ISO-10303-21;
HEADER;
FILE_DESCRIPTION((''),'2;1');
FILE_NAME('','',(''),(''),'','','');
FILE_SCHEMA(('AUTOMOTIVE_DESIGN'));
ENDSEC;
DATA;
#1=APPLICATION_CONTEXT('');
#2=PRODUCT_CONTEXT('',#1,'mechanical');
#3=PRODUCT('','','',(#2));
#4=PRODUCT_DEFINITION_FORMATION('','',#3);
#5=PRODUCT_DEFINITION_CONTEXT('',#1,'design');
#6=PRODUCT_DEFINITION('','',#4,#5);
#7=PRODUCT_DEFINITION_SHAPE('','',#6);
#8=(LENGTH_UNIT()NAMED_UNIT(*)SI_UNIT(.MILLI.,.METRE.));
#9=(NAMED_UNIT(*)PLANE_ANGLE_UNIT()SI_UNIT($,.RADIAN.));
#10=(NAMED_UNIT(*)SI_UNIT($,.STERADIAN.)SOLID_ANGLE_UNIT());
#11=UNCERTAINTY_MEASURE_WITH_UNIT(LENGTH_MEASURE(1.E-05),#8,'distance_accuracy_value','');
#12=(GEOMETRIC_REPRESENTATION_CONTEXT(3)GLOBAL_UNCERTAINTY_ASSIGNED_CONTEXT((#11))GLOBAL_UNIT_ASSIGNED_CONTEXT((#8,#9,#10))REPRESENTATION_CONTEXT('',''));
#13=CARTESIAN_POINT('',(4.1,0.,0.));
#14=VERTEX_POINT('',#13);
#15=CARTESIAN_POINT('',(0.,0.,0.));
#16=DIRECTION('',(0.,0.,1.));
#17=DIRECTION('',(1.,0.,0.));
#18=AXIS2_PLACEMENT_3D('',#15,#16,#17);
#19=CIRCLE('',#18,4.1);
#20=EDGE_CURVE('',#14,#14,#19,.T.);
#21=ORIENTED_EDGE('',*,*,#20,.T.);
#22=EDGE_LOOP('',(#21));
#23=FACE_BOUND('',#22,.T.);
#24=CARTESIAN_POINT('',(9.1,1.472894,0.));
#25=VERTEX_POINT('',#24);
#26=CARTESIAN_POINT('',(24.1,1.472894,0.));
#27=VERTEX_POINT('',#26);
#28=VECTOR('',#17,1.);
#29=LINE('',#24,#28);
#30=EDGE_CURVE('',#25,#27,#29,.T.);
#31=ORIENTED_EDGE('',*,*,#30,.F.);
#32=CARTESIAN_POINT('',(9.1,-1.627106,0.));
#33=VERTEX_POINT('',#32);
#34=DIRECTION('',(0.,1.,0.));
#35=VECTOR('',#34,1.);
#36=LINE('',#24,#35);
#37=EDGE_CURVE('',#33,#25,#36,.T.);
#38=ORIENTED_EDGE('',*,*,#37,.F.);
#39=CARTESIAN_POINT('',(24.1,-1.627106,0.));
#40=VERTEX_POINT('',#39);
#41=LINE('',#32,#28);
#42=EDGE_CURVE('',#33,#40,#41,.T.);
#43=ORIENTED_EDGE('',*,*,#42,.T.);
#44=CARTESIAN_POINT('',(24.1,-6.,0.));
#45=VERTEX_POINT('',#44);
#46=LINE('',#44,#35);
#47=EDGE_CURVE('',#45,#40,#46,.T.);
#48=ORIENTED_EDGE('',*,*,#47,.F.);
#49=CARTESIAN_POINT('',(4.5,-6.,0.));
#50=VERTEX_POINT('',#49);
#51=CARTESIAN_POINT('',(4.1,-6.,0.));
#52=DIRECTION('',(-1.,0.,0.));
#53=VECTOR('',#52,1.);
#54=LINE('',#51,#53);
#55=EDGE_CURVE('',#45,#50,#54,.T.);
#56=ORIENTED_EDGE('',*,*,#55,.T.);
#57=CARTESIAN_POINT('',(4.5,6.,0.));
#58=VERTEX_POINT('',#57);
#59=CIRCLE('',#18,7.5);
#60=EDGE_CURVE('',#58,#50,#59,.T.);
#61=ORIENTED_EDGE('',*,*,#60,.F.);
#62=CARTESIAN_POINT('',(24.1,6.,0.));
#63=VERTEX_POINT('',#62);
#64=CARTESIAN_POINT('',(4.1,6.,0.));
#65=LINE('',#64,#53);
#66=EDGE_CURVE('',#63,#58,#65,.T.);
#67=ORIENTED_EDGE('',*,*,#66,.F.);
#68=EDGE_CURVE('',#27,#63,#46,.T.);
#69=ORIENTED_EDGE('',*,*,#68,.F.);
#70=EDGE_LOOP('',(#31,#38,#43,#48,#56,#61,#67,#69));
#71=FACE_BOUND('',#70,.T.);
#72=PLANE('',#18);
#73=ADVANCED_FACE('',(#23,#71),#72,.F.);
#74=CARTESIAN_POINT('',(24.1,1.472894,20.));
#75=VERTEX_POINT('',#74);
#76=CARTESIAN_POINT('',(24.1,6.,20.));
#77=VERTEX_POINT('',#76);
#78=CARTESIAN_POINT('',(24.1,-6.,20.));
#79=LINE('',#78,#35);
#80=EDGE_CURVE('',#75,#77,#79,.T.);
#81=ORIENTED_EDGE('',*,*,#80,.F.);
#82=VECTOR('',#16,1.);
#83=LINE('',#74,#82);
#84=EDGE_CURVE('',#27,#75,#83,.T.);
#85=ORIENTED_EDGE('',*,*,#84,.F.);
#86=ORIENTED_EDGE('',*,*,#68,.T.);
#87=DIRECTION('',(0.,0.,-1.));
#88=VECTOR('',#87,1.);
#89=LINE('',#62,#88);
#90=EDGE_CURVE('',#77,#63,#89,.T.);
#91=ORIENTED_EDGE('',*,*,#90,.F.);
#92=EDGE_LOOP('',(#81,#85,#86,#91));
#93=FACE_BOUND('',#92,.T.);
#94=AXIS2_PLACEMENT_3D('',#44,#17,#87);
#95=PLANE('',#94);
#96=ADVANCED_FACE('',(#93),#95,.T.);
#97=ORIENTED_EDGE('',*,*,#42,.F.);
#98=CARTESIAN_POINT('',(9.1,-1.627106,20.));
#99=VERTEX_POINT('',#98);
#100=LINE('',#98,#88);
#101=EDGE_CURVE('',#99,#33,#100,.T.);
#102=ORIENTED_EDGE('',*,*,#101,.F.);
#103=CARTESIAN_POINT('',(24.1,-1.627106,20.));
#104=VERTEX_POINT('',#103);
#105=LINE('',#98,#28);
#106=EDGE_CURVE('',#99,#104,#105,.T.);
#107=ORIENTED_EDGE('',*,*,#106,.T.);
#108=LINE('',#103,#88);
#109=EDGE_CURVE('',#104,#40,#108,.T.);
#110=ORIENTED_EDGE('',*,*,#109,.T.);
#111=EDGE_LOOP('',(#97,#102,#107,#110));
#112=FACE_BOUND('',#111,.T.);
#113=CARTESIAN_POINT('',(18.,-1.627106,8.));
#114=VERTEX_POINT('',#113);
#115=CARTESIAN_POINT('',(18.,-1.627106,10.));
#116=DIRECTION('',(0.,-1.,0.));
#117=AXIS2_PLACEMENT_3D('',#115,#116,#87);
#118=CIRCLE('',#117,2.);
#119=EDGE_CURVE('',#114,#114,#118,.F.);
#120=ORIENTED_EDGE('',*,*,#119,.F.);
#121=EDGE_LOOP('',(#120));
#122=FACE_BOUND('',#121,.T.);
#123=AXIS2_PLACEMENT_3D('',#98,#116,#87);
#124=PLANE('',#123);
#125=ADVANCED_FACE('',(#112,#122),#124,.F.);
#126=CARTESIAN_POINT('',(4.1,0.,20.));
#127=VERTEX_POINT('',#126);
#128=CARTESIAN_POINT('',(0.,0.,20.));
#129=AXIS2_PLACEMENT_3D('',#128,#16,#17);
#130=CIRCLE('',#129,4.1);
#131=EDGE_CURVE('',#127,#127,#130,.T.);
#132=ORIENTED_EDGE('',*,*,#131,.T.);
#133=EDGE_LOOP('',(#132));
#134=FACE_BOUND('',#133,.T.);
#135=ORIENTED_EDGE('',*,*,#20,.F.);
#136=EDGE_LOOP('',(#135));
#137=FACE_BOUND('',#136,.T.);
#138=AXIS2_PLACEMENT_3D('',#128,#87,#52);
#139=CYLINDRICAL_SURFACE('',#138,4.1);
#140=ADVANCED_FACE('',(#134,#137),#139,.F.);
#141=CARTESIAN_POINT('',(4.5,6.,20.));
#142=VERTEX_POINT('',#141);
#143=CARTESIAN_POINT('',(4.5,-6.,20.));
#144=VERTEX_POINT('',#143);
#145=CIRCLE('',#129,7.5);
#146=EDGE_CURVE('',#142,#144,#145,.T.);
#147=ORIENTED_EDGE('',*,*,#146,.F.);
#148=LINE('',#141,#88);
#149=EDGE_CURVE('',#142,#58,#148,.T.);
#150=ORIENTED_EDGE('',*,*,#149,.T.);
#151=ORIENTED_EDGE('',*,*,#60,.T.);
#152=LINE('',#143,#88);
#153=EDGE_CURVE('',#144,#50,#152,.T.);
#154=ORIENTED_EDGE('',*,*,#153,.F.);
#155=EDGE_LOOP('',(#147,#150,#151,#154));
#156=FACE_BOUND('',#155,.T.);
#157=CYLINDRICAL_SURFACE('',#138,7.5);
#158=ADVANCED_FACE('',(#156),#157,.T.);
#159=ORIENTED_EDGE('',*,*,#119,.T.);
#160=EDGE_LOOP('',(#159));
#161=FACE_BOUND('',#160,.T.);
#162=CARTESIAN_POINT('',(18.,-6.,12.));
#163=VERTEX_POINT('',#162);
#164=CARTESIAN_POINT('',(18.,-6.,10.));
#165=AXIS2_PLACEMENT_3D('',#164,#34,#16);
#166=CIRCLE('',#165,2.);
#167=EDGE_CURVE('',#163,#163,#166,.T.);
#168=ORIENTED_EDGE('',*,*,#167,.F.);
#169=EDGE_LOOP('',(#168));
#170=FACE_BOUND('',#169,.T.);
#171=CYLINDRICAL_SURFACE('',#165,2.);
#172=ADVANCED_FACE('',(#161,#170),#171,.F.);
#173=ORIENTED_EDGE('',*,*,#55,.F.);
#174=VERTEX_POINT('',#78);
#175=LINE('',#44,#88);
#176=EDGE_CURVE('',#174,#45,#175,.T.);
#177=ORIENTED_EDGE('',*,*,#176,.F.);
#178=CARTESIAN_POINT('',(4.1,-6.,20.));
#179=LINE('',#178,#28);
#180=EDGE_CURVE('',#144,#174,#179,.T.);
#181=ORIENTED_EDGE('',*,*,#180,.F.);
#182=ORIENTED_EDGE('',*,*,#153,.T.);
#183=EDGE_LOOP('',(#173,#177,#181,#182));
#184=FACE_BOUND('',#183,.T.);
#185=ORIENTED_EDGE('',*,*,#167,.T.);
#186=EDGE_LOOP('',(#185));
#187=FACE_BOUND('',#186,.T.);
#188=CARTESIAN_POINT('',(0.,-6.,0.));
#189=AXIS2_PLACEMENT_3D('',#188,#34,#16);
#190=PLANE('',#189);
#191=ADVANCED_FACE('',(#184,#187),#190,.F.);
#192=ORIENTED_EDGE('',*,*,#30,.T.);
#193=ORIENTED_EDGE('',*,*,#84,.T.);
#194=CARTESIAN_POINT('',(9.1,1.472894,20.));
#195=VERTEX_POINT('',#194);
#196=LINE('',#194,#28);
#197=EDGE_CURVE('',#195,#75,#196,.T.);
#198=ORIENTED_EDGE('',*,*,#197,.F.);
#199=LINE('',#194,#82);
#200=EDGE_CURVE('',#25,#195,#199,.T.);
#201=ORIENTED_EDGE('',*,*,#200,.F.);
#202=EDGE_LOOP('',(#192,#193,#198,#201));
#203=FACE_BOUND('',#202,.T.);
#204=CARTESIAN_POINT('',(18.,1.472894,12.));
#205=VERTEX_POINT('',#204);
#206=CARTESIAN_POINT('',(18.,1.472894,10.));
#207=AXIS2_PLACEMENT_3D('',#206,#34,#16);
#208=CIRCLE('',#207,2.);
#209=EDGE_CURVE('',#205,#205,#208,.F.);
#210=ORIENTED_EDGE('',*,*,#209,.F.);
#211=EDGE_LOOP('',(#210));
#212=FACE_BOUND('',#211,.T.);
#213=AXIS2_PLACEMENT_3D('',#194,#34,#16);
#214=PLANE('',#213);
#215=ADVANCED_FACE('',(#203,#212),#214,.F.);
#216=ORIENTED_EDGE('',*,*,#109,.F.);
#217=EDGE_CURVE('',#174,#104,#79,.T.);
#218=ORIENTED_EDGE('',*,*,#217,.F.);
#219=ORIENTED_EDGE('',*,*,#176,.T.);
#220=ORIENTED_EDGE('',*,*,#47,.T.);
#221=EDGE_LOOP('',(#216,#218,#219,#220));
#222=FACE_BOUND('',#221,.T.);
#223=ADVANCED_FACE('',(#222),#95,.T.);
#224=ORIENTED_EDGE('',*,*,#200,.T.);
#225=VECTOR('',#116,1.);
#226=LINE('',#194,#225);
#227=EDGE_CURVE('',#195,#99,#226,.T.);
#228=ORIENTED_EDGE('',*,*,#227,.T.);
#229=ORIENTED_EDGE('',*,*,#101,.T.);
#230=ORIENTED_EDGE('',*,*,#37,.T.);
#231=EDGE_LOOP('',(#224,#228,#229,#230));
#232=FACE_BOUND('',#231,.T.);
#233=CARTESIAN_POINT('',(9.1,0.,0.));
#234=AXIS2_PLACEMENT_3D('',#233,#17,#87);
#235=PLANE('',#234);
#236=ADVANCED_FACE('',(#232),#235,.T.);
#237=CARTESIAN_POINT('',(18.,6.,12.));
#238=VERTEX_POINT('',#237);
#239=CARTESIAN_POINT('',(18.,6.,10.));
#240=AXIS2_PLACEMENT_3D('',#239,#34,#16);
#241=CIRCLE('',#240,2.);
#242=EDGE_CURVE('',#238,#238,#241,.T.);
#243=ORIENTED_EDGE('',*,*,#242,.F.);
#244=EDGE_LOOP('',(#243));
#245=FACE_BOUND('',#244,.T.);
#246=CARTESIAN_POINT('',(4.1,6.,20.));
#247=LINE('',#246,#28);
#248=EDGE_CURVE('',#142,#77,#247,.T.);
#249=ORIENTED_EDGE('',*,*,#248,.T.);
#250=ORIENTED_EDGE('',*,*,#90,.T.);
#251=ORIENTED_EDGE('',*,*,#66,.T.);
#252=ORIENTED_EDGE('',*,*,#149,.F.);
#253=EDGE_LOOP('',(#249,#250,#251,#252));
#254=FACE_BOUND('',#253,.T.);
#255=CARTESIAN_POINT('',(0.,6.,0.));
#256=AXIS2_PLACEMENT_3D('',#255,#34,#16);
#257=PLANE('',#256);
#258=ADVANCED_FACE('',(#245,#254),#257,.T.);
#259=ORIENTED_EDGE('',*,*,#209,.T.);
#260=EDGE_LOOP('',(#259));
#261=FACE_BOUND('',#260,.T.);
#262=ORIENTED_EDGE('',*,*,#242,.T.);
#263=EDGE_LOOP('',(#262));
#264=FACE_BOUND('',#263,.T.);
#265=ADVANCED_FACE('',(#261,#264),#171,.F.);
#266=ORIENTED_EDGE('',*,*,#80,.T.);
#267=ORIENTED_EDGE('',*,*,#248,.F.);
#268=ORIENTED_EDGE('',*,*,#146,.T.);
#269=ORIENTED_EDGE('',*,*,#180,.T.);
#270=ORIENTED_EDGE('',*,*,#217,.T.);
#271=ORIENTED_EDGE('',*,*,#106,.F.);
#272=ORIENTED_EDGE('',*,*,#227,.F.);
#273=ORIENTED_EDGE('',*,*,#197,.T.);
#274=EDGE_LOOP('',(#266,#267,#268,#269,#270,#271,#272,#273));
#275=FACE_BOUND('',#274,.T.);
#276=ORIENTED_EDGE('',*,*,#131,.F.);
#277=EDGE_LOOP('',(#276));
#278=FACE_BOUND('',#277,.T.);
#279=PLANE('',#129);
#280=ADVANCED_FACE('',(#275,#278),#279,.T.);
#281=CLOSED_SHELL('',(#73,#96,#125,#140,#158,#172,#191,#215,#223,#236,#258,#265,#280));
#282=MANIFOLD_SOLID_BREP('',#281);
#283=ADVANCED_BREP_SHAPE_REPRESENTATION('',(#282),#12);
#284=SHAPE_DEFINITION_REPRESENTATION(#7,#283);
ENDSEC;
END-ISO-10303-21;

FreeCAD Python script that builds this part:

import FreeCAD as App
import Part
import Sketcher
from FreeCAD import Vector


def add_polygon(sketch, points):
    """Adds a closed chain of lines whose ends are joined by coincident constraints."""
    first, n = sketch.GeometryCount, len(points)
    for a, b in zip(points, points[1:] + points[:1]):
        sketch.addGeometry(Part.LineSegment(App.Vector(*a, 0), App.Vector(*b, 0)), False)
    for i in range(n):
        sketch.addConstraint(Sketcher.Constraint("Coincident", first + i, 2, first + (i + 1) % n, 1))

doc = App.newDocument("Part")
body = doc.addObject("PartDesign::Body", "Body")

# Sketch on XY plane
sketch1 = body.newObject("Sketcher::SketchObject", "Sketch")
sketch1.AttachmentSupport = (doc.getObject("XY_Plane"), [""])
sketch1.MapMode = "FlatFace"
sketch1.addGeometry(Part.Circle(Vector(0, 0, 0), Vector(0, 0, 1), 7.5), False)
sketch1.addGeometry(Part.Circle(Vector(0, 0, 0), Vector(0, 0, 1), 4.1), False)
sketch1.addConstraint(Sketcher.Constraint("Coincident", 0, 3, -1, 1))
sketch1.addConstraint(Sketcher.Constraint("Coincident", 1, 3, -1, 1))
sketch1.addConstraint(Sketcher.Constraint("Diameter", 0, 15.0))
sketch1.addConstraint(Sketcher.Constraint("Diameter", 1, 8.2))
pad1 = body.newObject("PartDesign::Pad", "Pad")
pad1.Profile = sketch1
pad1.Length = 20

# Sketch on XZ plane
sketch2 = body.newObject("Sketcher::SketchObject", "Sketch001")
sketch2.AttachmentSupport = (doc.getObject("XZ_Plane"), [""])
sketch2.MapMode = "FlatFace"
add_polygon(sketch2, [(4.1, 0), (4.1, 20), (24.1, 20), (24.1, 0)])  # lines 0-3
sketch2.addGeometry(Part.Circle(Vector(18, 10, 0), Vector(0, 0, 1), 2), False)  # 4
sketch2.addConstraint(Sketcher.Constraint("Vertical", 0))
sketch2.addConstraint(Sketcher.Constraint("Horizontal", 1))
sketch2.addConstraint(Sketcher.Constraint("Vertical", 2))
sketch2.addConstraint(Sketcher.Constraint("Horizontal", 3))
sketch2.addConstraint(Sketcher.Constraint("PointOnObject", 2, 2, -1))
sketch2.addConstraint(Sketcher.Constraint("Equal", 3, 0))
sketch2.addConstraint(Sketcher.Constraint("Diameter", 4, 4.0))
sketch2.addConstraint(Sketcher.Constraint("DistanceX", 1, 1, 1, 2, 20.0))
sketch2.addConstraint(Sketcher.Constraint("DistanceX", -1, 1, 4, 3, 18.0))
sketch2.addConstraint(Sketcher.Constraint("DistanceY", -1, 1, 4, 3, 10.0))
sketch2.addConstraint(Sketcher.Constraint("DistanceX", -1, 1, 0, 2, 4.1))
pad2 = body.newObject("PartDesign::Pad", "Pad001")
pad2.Profile = sketch2
pad2.Type = "TwoLengths"
pad2.Length = 6
pad2.Length2 = 6
pad2.Reversed = True

# Sketch on YZ plane
sketch3 = body.newObject("Sketcher::SketchObject", "Sketch002")
sketch3.AttachmentSupport = (doc.getObject("YZ_Plane"), [""])
sketch3.MapMode = "FlatFace"
sketch3.AttachmentOffset = App.Placement(Vector(0, 0, 24.1), App.Rotation())
add_polygon(sketch3, [(1.5, 20), (-1.6, 20), (-1.6, 0), (1.5, 0)])  # lines 0-3
sketch3.addConstraint(Sketcher.Constraint("Horizontal", 0))
sketch3.addConstraint(Sketcher.Constraint("Vertical", 1))
sketch3.addConstraint(Sketcher.Constraint("Horizontal", 2))
sketch3.addConstraint(Sketcher.Constraint("Vertical", 3))
sketch3.addConstraint(Sketcher.Constraint("PointOnObject", 1, 2, -1))
sketch3.addConstraint(Sketcher.Constraint("DistanceY", 1, 2, 1, 1, 20.0))
sketch3.addConstraint(Sketcher.Constraint("DistanceX", 0, 2, 0, 1, 3.1))
sketch3.addConstraint(Sketcher.Constraint("DistanceX", 0, 2, -1, 1, 1.627106))
pocket1 = body.newObject("PartDesign::Pocket", "Pocket")
pocket1.Profile = sketch3
pocket1.Length = 15

doc.recompute()
